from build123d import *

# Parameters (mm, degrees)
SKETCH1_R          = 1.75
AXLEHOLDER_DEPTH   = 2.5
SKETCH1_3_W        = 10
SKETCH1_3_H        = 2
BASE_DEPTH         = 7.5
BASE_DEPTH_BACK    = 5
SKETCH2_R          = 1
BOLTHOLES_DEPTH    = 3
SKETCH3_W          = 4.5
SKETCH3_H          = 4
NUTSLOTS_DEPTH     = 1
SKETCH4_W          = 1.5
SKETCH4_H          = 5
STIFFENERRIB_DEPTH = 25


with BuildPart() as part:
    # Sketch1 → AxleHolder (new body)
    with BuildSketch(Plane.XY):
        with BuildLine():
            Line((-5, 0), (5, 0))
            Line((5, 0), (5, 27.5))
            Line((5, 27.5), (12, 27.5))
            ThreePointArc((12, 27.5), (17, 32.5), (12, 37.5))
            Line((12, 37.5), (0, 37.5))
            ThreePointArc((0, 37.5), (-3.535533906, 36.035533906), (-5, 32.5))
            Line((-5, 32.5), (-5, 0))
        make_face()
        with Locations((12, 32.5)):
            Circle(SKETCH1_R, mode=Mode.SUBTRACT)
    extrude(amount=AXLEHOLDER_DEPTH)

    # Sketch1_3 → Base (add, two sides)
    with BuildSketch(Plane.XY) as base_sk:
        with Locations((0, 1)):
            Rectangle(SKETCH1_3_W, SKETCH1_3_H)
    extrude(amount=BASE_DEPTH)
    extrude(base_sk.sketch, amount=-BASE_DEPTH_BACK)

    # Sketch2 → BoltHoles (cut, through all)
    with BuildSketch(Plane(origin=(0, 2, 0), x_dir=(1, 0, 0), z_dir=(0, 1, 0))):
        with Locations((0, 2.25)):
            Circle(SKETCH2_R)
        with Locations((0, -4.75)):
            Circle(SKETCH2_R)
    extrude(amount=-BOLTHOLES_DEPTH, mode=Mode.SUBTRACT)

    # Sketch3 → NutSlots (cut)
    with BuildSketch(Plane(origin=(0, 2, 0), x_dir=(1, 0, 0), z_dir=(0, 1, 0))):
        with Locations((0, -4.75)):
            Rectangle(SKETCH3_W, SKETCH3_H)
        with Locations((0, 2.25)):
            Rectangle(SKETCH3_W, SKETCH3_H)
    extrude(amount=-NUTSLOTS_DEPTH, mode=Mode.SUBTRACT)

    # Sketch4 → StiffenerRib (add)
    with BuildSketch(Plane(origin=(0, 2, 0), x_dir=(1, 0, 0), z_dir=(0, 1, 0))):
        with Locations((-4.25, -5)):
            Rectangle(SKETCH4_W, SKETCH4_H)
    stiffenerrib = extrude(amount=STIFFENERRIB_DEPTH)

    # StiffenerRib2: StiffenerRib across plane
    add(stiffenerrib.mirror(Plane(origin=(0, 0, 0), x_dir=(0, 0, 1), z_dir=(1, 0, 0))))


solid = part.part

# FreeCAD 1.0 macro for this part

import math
import FreeCAD as App
import Part
import Sketcher
from FreeCAD import Vector


def add_polygon(sketch, points):
    """Adds a closed chain of lines whose ends are joined by coincident constraints."""
    first, n = sketch.GeometryCount, len(points)
    for a, b in zip(points, points[1:] + points[:1]):
        sketch.addGeometry(Part.LineSegment(App.Vector(*a, 0), App.Vector(*b, 0)), False)
    for i in range(n):
        sketch.addConstraint(Sketcher.Constraint("Coincident", first + i, 2, first + (i + 1) % n, 1))

doc = App.newDocument("Part")
body = doc.addObject("PartDesign::Body", "Body")

sketch1 = body.newObject("Sketcher::SketchObject", "Sketch")
sketch1.AttachmentSupport = (doc.getObject("XY_Plane"), [""])
sketch1.MapMode = "FlatFace"
sketch1.addGeometry(Part.LineSegment(Vector(-5, 0, 0), Vector(5, 0, 0)), False)
sketch1.addGeometry(Part.LineSegment(Vector(5, 0, 0), Vector(5, 27.5, 0)), False)
sketch1.addGeometry(Part.LineSegment(Vector(5, 27.5, 0), Vector(12, 27.5, 0)), False)
sketch1.addGeometry(Part.ArcOfCircle(Part.Circle(Vector(12, 32.5, 0), Vector(0, 0, 1), 5), math.radians(-90), math.radians(90)), False)
sketch1.addGeometry(Part.LineSegment(Vector(12, 37.5, 0), Vector(0, 37.5, 0)), False)
sketch1.addGeometry(Part.ArcOfCircle(Part.Circle(Vector(0, 32.5, 0), Vector(0, 0, 1), 5), math.radians(90), math.radians(180)), False)
sketch1.addGeometry(Part.LineSegment(Vector(-5, 32.5, 0), Vector(-5, 0, 0)), False)
sketch1.addGeometry(Part.Circle(Vector(12, 32.5, 0), Vector(0, 0, 1), 1.75), False)
sketch1.addConstraint(Sketcher.Constraint("Coincident", 0, 2, 1, 1))
sketch1.addConstraint(Sketcher.Constraint("Coincident", 1, 2, 2, 1))
sketch1.addConstraint(Sketcher.Constraint("Tangent", 2, 2, 3, 1))
sketch1.addConstraint(Sketcher.Constraint("Tangent", 3, 2, 4, 1))
sketch1.addConstraint(Sketcher.Constraint("Tangent", 4, 2, 5, 1))
sketch1.addConstraint(Sketcher.Constraint("Tangent", 5, 2, 6, 1))
sketch1.addConstraint(Sketcher.Constraint("Coincident", 6, 2, 0, 1))
sketch1.addConstraint(Sketcher.Constraint("Horizontal", 0))
sketch1.addConstraint(Sketcher.Constraint("Vertical", 1))
sketch1.addConstraint(Sketcher.Constraint("Horizontal", 2))
sketch1.addConstraint(Sketcher.Constraint("Horizontal", 4))
sketch1.addConstraint(Sketcher.Constraint("Vertical", 6))
sketch1.addConstraint(Sketcher.Constraint("Coincident", 7, 3, 3, 3))
sketch1.addConstraint(Sketcher.Constraint("Equal", 3, 5))
sketch1.addConstraint(Sketcher.Constraint("Symmetric", 0, 2, 6, 2, -1, 1))
sketch1.addConstraint(Sketcher.Constraint("PointOnObject", 5, 3, -2))
sketch1.addConstraint(Sketcher.Constraint("Radius", 3, 5.0))
sketch1.addConstraint(Sketcher.Constraint("Diameter", 7, 3.5))
sketch1.addConstraint(Sketcher.Constraint("DistanceX", 2, 1, 2, 2, 7.0))
sketch1.addConstraint(Sketcher.Constraint("DistanceY", 1, 1, 1, 2, 27.5))
pad1 = body.newObject("PartDesign::Pad", "Pad")
pad1.Profile = sketch1
pad1.Length = 2.5

sketch2 = body.newObject("Sketcher::SketchObject", "Sketch001")
sketch2.AttachmentSupport = (doc.getObject("XY_Plane"), [""])
sketch2.MapMode = "FlatFace"
add_polygon(sketch2, [(-5, 2), (-5, 0), (5, 0), (5, 2)])
sketch2.addConstraint(Sketcher.Constraint("Vertical", 0))
sketch2.addConstraint(Sketcher.Constraint("Horizontal", 1))
sketch2.addConstraint(Sketcher.Constraint("Vertical", 2))
sketch2.addConstraint(Sketcher.Constraint("Horizontal", 3))
sketch2.addConstraint(Sketcher.Constraint("Symmetric", 0, 2, 1, 2, -1, 1))
sketch2.addConstraint(Sketcher.Constraint("DistanceX", 1, 1, 1, 2, 10.0))
sketch2.addConstraint(Sketcher.Constraint("DistanceY", 0, 2, 0, 1, 2.0))
pad2 = body.newObject("PartDesign::Pad", "Pad001")
pad2.Profile = sketch2
pad2.Type = "TwoLengths"
pad2.Length = 7.5
pad2.Length2 = 5

sketch3 = body.newObject("Sketcher::SketchObject", "Sketch002")
sketch3.AttachmentSupport = (doc.getObject("XZ_Plane"), [""])
sketch3.MapMode = "FlatFace"
sketch3.AttachmentOffset = App.Placement(Vector(0, 0, -2), App.Rotation())
sketch3.addGeometry(Part.Circle(Vector(0, -2.25, 0), Vector(0, 0, 1), 1), False)
sketch3.addGeometry(Part.Circle(Vector(0, 4.75, 0), Vector(0, 0, 1), 1), False)
sketch3.addConstraint(Sketcher.Constraint("Equal", 0, 1))
sketch3.addConstraint(Sketcher.Constraint("PointOnObject", 0, 3, -2))
sketch3.addConstraint(Sketcher.Constraint("PointOnObject", 1, 3, -2))
sketch3.addConstraint(Sketcher.Constraint("Diameter", 0, 2.0))
sketch3.addConstraint(Sketcher.Constraint("DistanceY", 0, 3, 1, 3, 7.0))
sketch3.addConstraint(Sketcher.Constraint("DistanceY", 0, 3, -1, 1, 2.25))
pocket1 = body.newObject("PartDesign::Pocket", "Pocket")
pocket1.Profile = sketch3
pocket1.Type = "ThroughAll"
pocket1.Reversed = True

sketch4 = body.newObject("Sketcher::SketchObject", "Sketch003")
sketch4.AttachmentSupport = (doc.getObject("XZ_Plane"), [""])
sketch4.MapMode = "FlatFace"
sketch4.AttachmentOffset = App.Placement(Vector(0, 0, -2), App.Rotation())
add_polygon(sketch4, [(-2.25, 2.75), (-2.25, 6.75), (2.25, 6.75), (2.25, 2.75)])
add_polygon(sketch4, [(-2.25, -4.25), (-2.25, -0.25), (2.25, -0.25), (2.25, -4.25)])
sketch4.addConstraint(Sketcher.Constraint("Vertical", 0))
sketch4.addConstraint(Sketcher.Constraint("Horizontal", 1))
sketch4.addConstraint(Sketcher.Constraint("Vertical", 2))
sketch4.addConstraint(Sketcher.Constraint("Horizontal", 3))
sketch4.addConstraint(Sketcher.Constraint("Vertical", 4))
sketch4.addConstraint(Sketcher.Constraint("Horizontal", 5))
sketch4.addConstraint(Sketcher.Constraint("Vertical", 6))
sketch4.addConstraint(Sketcher.Constraint("Horizontal", 7))
sketch4.addConstraint(Sketcher.Constraint("Vertical", 3, 2, 4, 2))
sketch4.addConstraint(Sketcher.Constraint("Vertical", 2, 2, 5, 2))
sketch4.addConstraint(Sketcher.Constraint("Equal", 2, 4))
sketch4.addConstraint(Sketcher.Constraint("DistanceY", 0, 1, 0, 2, 4.0))
sketch4.addConstraint(Sketcher.Constraint("DistanceX", 1, 1, 1, 2, 4.5))
sketch4.addConstraint(Sketcher.Constraint("DistanceY", 4, 2, 3, 2, 3.0))
sketch4.addConstraint(Sketcher.Constraint("DistanceX", 0, 2, -1, 1, 2.25))
sketch4.addConstraint(Sketcher.Constraint("DistanceY", -1, 1, 0, 2, 6.75))
pocket2 = body.newObject("PartDesign::Pocket", "Pocket001")
pocket2.Profile = sketch4
pocket2.Length = 1
pocket2.Reversed = True

sketch5 = body.newObject("Sketcher::SketchObject", "Sketch004")
sketch5.AttachmentSupport = (doc.getObject("XZ_Plane"), [""])
sketch5.MapMode = "FlatFace"
sketch5.AttachmentOffset = App.Placement(Vector(0, 0, -2), App.Rotation())
add_polygon(sketch5, [(-5, 2.5), (-5, 7.5), (-3.5, 7.5), (-3.5, 2.5)])
sketch5.addConstraint(Sketcher.Constraint("Vertical", 0))
sketch5.addConstraint(Sketcher.Constraint("Horizontal", 1))
sketch5.addConstraint(Sketcher.Constraint("Vertical", 2))
sketch5.addConstraint(Sketcher.Constraint("Horizontal", 3))
sketch5.addConstraint(Sketcher.Constraint("DistanceY", 0, 1, 0, 2, 5.0))
sketch5.addConstraint(Sketcher.Constraint("DistanceX", 1, 1, 1, 2, 1.5))
sketch5.addConstraint(Sketcher.Constraint("DistanceX", 0, 2, -1, 1, 5.0))
sketch5.addConstraint(Sketcher.Constraint("DistanceY", -1, 1, 0, 2, 7.5))
pad3 = body.newObject("PartDesign::Pad", "Pad002")
pad3.Profile = sketch5
pad3.Length = 25
pad3.Reversed = True
doc.recompute()

mirrored = body.newObject("PartDesign::Mirrored", "Mirrored")
mirrored.Originals = [pad3]
mirrored.MirrorPlane = (doc.getObject("YZ_Plane"), [""])
body.Tip = mirrored

doc.recompute()
